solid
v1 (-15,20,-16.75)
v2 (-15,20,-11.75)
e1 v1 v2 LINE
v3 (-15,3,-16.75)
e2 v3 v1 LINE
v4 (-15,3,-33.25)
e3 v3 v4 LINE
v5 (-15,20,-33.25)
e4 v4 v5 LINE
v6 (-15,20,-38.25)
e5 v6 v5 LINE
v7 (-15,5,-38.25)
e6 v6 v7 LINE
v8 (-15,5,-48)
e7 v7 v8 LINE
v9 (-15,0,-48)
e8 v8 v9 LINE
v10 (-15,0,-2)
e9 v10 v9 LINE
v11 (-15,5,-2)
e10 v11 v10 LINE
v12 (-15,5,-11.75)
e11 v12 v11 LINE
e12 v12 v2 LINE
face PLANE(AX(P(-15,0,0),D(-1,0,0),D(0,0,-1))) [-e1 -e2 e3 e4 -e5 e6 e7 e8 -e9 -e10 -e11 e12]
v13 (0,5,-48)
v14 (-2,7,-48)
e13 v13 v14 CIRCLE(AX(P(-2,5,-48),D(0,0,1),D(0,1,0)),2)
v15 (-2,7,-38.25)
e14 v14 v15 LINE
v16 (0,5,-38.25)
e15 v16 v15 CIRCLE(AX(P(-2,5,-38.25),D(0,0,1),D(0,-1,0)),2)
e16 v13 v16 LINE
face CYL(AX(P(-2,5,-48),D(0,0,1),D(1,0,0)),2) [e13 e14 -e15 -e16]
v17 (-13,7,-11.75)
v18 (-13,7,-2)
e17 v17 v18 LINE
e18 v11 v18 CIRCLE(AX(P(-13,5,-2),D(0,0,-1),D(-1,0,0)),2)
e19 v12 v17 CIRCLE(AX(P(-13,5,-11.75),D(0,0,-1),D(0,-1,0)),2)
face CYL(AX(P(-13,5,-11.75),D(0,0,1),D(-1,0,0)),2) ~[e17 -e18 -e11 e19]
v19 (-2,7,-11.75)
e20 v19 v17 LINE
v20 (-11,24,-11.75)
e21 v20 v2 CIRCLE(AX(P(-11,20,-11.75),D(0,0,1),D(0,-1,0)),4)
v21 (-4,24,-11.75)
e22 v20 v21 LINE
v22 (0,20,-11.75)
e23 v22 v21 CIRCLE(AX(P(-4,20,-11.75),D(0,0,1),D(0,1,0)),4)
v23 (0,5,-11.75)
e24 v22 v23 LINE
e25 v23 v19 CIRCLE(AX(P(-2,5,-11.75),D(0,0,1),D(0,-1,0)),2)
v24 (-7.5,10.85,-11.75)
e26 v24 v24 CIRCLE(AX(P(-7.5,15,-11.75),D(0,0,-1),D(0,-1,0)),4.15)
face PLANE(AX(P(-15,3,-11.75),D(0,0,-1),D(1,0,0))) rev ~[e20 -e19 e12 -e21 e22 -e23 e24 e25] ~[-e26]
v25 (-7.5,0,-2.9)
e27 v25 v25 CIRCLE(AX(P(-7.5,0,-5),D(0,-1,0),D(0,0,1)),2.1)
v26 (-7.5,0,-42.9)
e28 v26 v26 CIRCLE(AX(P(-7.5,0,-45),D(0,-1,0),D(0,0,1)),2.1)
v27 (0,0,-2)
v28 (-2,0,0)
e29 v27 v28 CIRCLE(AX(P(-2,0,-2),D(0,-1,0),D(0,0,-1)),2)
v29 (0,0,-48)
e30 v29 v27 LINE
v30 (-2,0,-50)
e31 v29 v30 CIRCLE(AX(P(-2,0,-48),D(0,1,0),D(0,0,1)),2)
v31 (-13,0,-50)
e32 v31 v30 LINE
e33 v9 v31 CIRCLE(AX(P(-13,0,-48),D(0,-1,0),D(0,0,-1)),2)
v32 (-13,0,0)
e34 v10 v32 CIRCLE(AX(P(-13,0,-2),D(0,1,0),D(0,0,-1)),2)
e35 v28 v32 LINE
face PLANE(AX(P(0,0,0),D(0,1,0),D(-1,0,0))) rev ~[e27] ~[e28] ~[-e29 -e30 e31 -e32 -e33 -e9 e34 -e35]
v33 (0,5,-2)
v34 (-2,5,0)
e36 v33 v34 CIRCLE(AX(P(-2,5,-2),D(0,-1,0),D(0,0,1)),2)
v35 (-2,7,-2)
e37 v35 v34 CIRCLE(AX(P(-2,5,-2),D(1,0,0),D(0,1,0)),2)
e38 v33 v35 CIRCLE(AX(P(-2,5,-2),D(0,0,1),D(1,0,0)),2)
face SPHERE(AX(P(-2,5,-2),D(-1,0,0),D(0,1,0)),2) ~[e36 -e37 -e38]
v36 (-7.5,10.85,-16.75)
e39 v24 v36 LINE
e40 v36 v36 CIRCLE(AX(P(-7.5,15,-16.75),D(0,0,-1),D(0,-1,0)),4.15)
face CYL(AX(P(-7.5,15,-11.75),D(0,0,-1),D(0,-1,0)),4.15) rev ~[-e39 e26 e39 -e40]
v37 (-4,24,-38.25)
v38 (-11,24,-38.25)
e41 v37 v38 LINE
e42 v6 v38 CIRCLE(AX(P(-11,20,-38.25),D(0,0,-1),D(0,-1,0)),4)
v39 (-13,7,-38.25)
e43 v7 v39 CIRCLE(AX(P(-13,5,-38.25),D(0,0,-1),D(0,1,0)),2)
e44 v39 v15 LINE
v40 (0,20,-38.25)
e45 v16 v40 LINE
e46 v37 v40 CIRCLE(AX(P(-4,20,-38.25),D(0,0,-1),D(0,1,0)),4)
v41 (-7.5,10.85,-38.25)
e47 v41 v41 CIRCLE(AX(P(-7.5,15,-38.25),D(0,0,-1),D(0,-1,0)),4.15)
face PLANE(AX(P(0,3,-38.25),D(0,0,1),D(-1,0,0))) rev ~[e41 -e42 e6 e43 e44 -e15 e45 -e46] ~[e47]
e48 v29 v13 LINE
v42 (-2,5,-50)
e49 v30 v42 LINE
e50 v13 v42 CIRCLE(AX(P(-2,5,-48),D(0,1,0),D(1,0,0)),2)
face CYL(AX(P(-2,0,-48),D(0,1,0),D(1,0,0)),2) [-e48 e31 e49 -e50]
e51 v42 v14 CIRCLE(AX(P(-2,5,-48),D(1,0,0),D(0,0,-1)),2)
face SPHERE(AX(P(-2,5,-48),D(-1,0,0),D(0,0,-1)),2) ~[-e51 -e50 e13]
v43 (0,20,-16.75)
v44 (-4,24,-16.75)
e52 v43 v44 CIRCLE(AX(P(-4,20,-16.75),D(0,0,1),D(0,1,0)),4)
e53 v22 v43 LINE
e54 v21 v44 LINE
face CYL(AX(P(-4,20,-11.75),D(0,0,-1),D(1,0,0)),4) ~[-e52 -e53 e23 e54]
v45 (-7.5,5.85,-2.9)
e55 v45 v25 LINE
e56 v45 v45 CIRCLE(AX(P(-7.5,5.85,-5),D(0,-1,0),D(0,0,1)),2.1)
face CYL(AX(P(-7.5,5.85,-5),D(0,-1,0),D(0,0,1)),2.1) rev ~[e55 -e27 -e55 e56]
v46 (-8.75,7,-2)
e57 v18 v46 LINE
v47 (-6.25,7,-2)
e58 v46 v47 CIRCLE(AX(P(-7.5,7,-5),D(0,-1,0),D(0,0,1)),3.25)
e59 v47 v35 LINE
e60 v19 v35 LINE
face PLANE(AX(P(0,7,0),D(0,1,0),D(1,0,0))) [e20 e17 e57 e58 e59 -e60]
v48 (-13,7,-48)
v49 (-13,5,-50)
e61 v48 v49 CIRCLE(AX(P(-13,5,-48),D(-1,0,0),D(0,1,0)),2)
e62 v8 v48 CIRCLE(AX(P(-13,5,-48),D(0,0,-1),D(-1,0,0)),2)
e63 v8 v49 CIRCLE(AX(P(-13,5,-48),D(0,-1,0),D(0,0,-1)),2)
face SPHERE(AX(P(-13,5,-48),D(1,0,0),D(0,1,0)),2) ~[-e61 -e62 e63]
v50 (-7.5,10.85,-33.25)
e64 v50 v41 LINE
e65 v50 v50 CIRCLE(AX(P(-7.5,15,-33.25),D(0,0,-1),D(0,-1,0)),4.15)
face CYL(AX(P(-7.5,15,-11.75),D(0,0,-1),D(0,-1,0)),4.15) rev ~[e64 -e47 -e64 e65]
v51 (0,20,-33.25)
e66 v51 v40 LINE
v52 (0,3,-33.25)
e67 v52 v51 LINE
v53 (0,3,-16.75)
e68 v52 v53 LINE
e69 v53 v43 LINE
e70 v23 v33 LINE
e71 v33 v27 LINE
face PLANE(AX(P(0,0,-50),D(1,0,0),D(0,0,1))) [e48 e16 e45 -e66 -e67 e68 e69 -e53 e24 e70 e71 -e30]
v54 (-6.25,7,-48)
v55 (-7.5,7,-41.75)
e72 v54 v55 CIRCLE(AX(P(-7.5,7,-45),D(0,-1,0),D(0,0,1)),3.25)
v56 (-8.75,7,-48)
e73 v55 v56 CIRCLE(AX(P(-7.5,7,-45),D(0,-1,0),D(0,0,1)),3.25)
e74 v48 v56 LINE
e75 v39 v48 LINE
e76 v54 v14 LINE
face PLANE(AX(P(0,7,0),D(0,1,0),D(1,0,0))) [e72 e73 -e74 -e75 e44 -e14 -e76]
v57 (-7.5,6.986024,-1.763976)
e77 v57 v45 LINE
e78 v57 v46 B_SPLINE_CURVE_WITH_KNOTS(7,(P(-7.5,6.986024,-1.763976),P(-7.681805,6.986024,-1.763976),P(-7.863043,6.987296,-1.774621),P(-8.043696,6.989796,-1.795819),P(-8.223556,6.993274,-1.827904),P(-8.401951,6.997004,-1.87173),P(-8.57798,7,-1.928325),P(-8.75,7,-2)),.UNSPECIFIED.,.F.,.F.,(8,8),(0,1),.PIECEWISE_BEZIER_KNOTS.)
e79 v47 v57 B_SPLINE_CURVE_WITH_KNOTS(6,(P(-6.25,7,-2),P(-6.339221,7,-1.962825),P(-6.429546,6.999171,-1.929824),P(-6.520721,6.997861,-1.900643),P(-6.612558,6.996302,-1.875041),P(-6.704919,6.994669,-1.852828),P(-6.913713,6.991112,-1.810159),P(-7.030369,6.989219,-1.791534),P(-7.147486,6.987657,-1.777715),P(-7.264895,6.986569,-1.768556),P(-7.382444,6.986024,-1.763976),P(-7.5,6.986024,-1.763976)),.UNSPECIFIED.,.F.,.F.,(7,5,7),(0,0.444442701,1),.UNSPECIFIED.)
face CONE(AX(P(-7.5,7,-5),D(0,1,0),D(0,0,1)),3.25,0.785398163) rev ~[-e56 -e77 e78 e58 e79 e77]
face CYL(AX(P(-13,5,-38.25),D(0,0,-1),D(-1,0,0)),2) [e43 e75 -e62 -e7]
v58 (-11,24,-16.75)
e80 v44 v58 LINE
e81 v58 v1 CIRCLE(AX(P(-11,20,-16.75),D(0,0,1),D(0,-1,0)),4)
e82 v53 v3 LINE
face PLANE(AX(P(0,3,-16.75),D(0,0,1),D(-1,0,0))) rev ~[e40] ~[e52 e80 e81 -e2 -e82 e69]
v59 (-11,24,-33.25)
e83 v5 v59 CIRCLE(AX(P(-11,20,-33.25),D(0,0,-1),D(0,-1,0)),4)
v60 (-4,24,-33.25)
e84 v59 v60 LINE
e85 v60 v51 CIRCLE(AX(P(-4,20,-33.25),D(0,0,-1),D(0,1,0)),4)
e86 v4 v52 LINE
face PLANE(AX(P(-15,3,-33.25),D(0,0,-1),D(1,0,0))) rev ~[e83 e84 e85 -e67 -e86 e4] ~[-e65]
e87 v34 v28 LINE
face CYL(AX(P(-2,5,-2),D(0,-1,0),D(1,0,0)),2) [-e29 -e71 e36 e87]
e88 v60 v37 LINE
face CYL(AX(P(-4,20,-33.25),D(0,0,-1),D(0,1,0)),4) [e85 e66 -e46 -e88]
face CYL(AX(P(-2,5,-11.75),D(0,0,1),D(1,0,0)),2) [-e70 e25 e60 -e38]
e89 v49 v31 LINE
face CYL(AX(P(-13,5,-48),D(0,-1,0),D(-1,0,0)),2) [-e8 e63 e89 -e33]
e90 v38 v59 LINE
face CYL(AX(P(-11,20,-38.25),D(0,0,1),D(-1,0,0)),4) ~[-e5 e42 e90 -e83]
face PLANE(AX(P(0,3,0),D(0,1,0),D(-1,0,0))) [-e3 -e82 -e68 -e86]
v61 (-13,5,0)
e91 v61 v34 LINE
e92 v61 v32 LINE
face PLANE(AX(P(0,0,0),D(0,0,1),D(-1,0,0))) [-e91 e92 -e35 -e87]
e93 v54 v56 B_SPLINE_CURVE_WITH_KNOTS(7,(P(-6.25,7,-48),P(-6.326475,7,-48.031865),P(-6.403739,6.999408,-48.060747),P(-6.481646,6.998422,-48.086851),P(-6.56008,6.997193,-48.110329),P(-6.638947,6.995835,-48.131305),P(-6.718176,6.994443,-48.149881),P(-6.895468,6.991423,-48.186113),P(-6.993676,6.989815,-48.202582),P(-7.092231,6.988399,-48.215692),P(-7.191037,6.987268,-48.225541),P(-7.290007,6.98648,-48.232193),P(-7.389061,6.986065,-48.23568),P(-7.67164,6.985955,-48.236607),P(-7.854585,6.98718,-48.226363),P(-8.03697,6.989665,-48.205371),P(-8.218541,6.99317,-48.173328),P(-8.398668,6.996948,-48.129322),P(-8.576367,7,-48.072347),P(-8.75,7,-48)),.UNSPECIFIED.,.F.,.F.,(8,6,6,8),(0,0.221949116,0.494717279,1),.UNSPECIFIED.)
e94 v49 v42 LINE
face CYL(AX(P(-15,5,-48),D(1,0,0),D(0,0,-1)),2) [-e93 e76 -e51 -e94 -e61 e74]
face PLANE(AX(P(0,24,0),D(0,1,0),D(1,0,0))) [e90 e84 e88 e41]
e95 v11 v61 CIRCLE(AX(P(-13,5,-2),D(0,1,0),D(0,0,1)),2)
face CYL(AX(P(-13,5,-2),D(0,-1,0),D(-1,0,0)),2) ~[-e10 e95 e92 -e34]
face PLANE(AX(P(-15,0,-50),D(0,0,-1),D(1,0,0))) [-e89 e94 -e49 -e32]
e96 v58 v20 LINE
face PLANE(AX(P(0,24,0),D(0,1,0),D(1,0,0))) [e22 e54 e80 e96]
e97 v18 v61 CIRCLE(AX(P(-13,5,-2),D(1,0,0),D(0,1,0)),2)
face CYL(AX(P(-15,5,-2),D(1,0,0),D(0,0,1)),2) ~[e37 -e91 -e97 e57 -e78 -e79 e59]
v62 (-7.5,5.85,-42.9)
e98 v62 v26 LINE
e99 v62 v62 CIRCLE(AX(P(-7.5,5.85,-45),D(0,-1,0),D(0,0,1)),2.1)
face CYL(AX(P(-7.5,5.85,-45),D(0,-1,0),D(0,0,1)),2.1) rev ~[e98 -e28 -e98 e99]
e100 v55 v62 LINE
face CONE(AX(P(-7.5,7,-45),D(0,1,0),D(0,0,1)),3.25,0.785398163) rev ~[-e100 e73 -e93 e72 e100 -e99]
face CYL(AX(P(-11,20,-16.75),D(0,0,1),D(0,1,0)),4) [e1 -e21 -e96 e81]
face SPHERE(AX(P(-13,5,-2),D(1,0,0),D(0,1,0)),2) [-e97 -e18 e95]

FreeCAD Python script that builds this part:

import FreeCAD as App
import Part
import Sketcher
from FreeCAD import Vector


def edges_at(feature, points):
    """Names of the edges that pass closest to the given points."""
    edges = feature.Shape.Edges
    near = lambda p: min(range(len(edges)), key=lambda i: edges[i].distToShape(Part.Vertex(*p))[0])
    return sorted({f"Edge{near(p) + 1}" for p in points})

doc = App.newDocument("Part")
body = doc.addObject("PartDesign::Body", "Body")

sketch1 = body.newObject("Sketcher::SketchObject", "Sketch")
sketch1.AttachmentSupport = (doc.getObject("XZ_Plane"), [""])
sketch1.MapMode = "FlatFace"
sketch1.addGeometry([
    Part.LineSegment(Vector(-15, 0, 0), Vector(0, 0, 0)),
    Part.LineSegment(Vector(0, 0, 0), Vector(0, -50, 0)),
    Part.LineSegment(Vector(0, -50, 0), Vector(-15, -50, 0)),
    Part.LineSegment(Vector(-15, -50, 0), Vector(-15, 0, 0)),
], False)
sketch1.addConstraint([
    Sketcher.Constraint("Coincident", 0, 2, 1, 1),
    Sketcher.Constraint("Coincident", 1, 2, 2, 1),
    Sketcher.Constraint("Coincident", 2, 2, 3, 1),
    Sketcher.Constraint("Coincident", 3, 2, 0, 1),
    Sketcher.Constraint("Horizontal", 0),
    Sketcher.Constraint("Vertical", 1),
    Sketcher.Constraint("Horizontal", 2),
    Sketcher.Constraint("Vertical", 3),
    Sketcher.Constraint("Coincident", 0, 2, -1, 1),
    Sketcher.Constraint("DistanceX", 0, 1, 0, 2, 15.0),
    Sketcher.Constraint("DistanceY", 1, 2, 1, 1, 50.0),
])
pad1 = body.newObject("PartDesign::Pad", "Pad")
pad1.Profile = sketch1
pad1.Length = 3
pad1.Reversed = True

sketch2 = body.newObject("Sketcher::SketchObject", "Sketch001")
sketch2.AttachmentSupport = (doc.getObject("XZ_Plane"), [""])
sketch2.MapMode = "FlatFace"
sketch2.AttachmentOffset = App.Placement(Vector(0, 0, -3), App.Rotation())
sketch2.addGeometry([
    Part.LineSegment(Vector(0, -38.25, 0), Vector(-15, -38.25, 0)),
    Part.LineSegment(Vector(-15, -38.25, 0), Vector(-15, -33.25, 0)),
    Part.LineSegment(Vector(-15, -33.25, 0), Vector(0, -33.25, 0)),
    Part.LineSegment(Vector(0, -33.25, 0), Vector(0, -38.25, 0)),
    Part.LineSegment(Vector(0, -16.75, 0), Vector(-15, -16.75, 0)),
    Part.LineSegment(Vector(-15, -16.75, 0), Vector(-15, -11.75, 0)),
    Part.LineSegment(Vector(-15, -11.75, 0), Vector(0, -11.75, 0)),
    Part.LineSegment(Vector(0, -11.75, 0), Vector(0, -16.75, 0)),
], False)
sketch2.addConstraint([
    Sketcher.Constraint("Coincident", 0, 2, 1, 1),
    Sketcher.Constraint("Coincident", 1, 2, 2, 1),
    Sketcher.Constraint("Coincident", 2, 2, 3, 1),
    Sketcher.Constraint("Coincident", 3, 2, 0, 1),
    Sketcher.Constraint("Coincident", 4, 2, 5, 1),
    Sketcher.Constraint("Coincident", 5, 2, 6, 1),
    Sketcher.Constraint("Coincident", 6, 2, 7, 1),
    Sketcher.Constraint("Coincident", 7, 2, 4, 1),
    Sketcher.Constraint("Horizontal", 0),
    Sketcher.Constraint("Vertical", 1),
    Sketcher.Constraint("Horizontal", 2),
    Sketcher.Constraint("Vertical", 3),
    Sketcher.Constraint("Horizontal", 4),
    Sketcher.Constraint("Vertical", 5),
    Sketcher.Constraint("Horizontal", 6),
    Sketcher.Constraint("Vertical", 7),
    Sketcher.Constraint("PointOnObject", 2, 2, -2),
    Sketcher.Constraint("PointOnObject", 6, 2, -2),
    Sketcher.Constraint("Vertical", 1, 2, 4, 2),
    Sketcher.Constraint("Equal", 3, 5),
    Sketcher.Constraint("DistanceX", 0, 2, 0, 1, 15.0),
    Sketcher.Constraint("DistanceY", 1, 1, 1, 2, 5.0),
    Sketcher.Constraint("DistanceY", 5, 2, -1, 1, 11.75),
    Sketcher.Constraint("DistanceY", 1, 2, 4, 2, 16.5),
])
pad2 = body.newObject("PartDesign::Pad", "Pad001")
pad2.Profile = sketch2
pad2.Length = 21
pad2.Reversed = True

sketch3 = body.newObject("Sketcher::SketchObject", "Sketch002")
sketch3.AttachmentSupport = (doc.getObject("XY_Plane"), [""])
sketch3.MapMode = "FlatFace"
sketch3.AttachmentOffset = App.Placement(Vector(0, 0, -11.75), App.Rotation())
sketch3.addGeometry(Part.Circle(Vector(-7.5, 15, 0), Vector(0, 0, 1), 4.15), False)
sketch3.addConstraint([
    Sketcher.Constraint("Diameter", 0, 8.3),
    Sketcher.Constraint("DistanceY", -1, 1, 0, 3, 15.0),
    Sketcher.Constraint("DistanceX", 0, 3, -1, 1, 7.5),
])
doc.recompute()
hole = body.newObject("PartDesign::Hole", "Hole")
hole.Profile = sketch3
hole.ThreadType = "None"
hole.Diameter = 8.3
hole.DepthType = "Dimension"
hole.Depth = 100
hole.DrillPoint = "Angled"
hole.DrillPointAngle = 118
doc.recompute()

fillet = body.newObject("PartDesign::Fillet", "Fillet")
fillet.Base = (hole, edges_at(hole, [(0, 24, -14.25)]))
fillet.Radius = 4
doc.recompute()

fillet2 = body.newObject("PartDesign::Fillet", "Fillet001")
fillet2.Base = (fillet, edges_at(fillet, [(-15, 24, -14.25)]))
fillet2.Radius = 4
doc.recompute()

fillet3 = body.newObject("PartDesign::Fillet", "Fillet002")
fillet3.Base = (fillet2, edges_at(fillet2, [(-15, 24, -35.75)]))
fillet3.Radius = 4
doc.recompute()

fillet4 = body.newObject("PartDesign::Fillet", "Fillet003")
fillet4.Base = (fillet3, edges_at(fillet3, [(0, 24, -35.75)]))
fillet4.Radius = 4

sketch4 = body.newObject("Sketcher::SketchObject", "Sketch003")
sketch4.AttachmentSupport = (doc.getObject("XZ_Plane"), [""])
sketch4.MapMode = "FlatFace"
sketch4.AttachmentOffset = App.Placement(Vector(0, 0, -3), App.Rotation())
sketch4.addGeometry([
    Part.LineSegment(Vector(0, -38.25, 0), Vector(0, -50, 0)),
    Part.LineSegment(Vector(0, -50, 0), Vector(-15, -50, 0)),
    Part.LineSegment(Vector(-15, -50, 0), Vector(-15, -38.25, 0)),
    Part.LineSegment(Vector(-15, -38.25, 0), Vector(0, -38.25, 0)),
    Part.LineSegment(Vector(0, 0, 0), Vector(0, -11.75, 0)),
    Part.LineSegment(Vector(0, -11.75, 0), Vector(-15, -11.75, 0)),
    Part.LineSegment(Vector(-15, -11.75, 0), Vector(-15, 0, 0)),
    Part.LineSegment(Vector(-15, 0, 0), Vector(0, 0, 0)),
], False)
sketch4.addConstraint([
    Sketcher.Constraint("Coincident", 0, 2, 1, 1),
    Sketcher.Constraint("Coincident", 1, 2, 2, 1),
    Sketcher.Constraint("Coincident", 2, 2, 3, 1),
    Sketcher.Constraint("Coincident", 3, 2, 0, 1),
    Sketcher.Constraint("Coincident", 4, 2, 5, 1),
    Sketcher.Constraint("Coincident", 5, 2, 6, 1),
    Sketcher.Constraint("Coincident", 6, 2, 7, 1),
    Sketcher.Constraint("Coincident", 7, 2, 4, 1),
    Sketcher.Constraint("Vertical", 0),
    Sketcher.Constraint("Horizontal", 1),
    Sketcher.Constraint("Vertical", 2),
    Sketcher.Constraint("Horizontal", 3),
    Sketcher.Constraint("Vertical", 4),
    Sketcher.Constraint("Horizontal", 5),
    Sketcher.Constraint("Vertical", 6),
    Sketcher.Constraint("Horizontal", 7),
    Sketcher.Constraint("Coincident", 7, 2, -1, 1),
    Sketcher.Constraint("PointOnObject", 0, 2, -2),
    Sketcher.Constraint("Vertical", 2, 2, 5, 2),
    Sketcher.Constraint("Equal", 2, 4),
    Sketcher.Constraint("DistanceX", 1, 2, 1, 1, 15.0),
    Sketcher.Constraint("DistanceY", 0, 2, 0, 1, 11.75),
    Sketcher.Constraint("DistanceY", 0, 2, -1, 1, 50.0),
])
pad3 = body.newObject("PartDesign::Pad", "Pad002")
pad3.Profile = sketch4
pad3.Length = 4
pad3.Reversed = True
doc.recompute()

fillet5 = body.newObject("PartDesign::Fillet", "Fillet004")
fillet5.Base = (pad3, edges_at(pad3, [(-7.5, 7, 0)]))
fillet5.Radius = 2
doc.recompute()

fillet6 = body.newObject("PartDesign::Fillet", "Fillet005")
fillet6.Base = (fillet5, edges_at(fillet5, [(-7.5, 7, -50)]))
fillet6.Radius = 2
doc.recompute()

fillet7 = body.newObject("PartDesign::Fillet", "Fillet006")
fillet7.Base = (fillet6, edges_at(fillet6, [(0, 7, -43.125), (0, 6.414, -49.414), (0, 2.5, -50)]))
fillet7.Radius = 2
doc.recompute()

fillet8 = body.newObject("PartDesign::Fillet", "Fillet007")
fillet8.Base = (fillet7, edges_at(fillet7, [(0, 7, -6.875), (0, 6.414, -0.586), (0, 2.5, 0)]))
fillet8.Radius = 2
doc.recompute()

fillet9 = body.newObject("PartDesign::Fillet", "Fillet008")
fillet9.Base = (fillet8, edges_at(fillet8, [(-15, 7, -6.875), (-15, 6.414, -0.586), (-15, 2.5, 0)]))
fillet9.Radius = 2
doc.recompute()

fillet10 = body.newObject("PartDesign::Fillet", "Fillet009")
fillet10.Base = (fillet9, edges_at(fillet9, [(-15, 7, -43.125), (-15, 6.414, -49.414), (-15, 2.5, -50)]))
fillet10.Radius = 2

sketch5 = body.newObject("Sketcher::SketchObject", "Sketch004")
sketch5.AttachmentSupport = (doc.getObject("XZ_Plane"), [""])
sketch5.MapMode = "FlatFace"
sketch5.AttachmentOffset = App.Placement(Vector(0, 0, -7), App.Rotation())
sketch5.addGeometry([
    Part.Circle(Vector(-7.5, -45, 0), Vector(0, 0, 1), 2.1),
    Part.Circle(Vector(-7.5, -5, 0), Vector(0, 0, 1), 2.1),
], False)
sketch5.addConstraint([
    Sketcher.Constraint("Equal", 0, 1),
    Sketcher.Constraint("Vertical", 0, 3, 1, 3),
    Sketcher.Constraint("Diameter", 0, 4.2),
    Sketcher.Constraint("DistanceY", 0, 3, -1, 1, 45.0),
    Sketcher.Constraint("DistanceY", 1, 3, -1, 1, 5.0),
    Sketcher.Constraint("DistanceX", 0, 3, -1, 1, 7.5),
])
doc.recompute()
hole2 = body.newObject("PartDesign::Hole", "Hole001")
hole2.Profile = sketch5
hole2.ThreadType = "None"
hole2.Diameter = 4.2
hole2.DepthType = "Dimension"
hole2.Depth = 100
hole2.DrillPoint = "Angled"
hole2.DrillPointAngle = 118
hole2.HoleCutType = "Countersink"
hole2.HoleCutDiameter = 6.5
hole2.HoleCutCountersinkAngle = 90
hole2.Reversed = True

doc.recompute()
